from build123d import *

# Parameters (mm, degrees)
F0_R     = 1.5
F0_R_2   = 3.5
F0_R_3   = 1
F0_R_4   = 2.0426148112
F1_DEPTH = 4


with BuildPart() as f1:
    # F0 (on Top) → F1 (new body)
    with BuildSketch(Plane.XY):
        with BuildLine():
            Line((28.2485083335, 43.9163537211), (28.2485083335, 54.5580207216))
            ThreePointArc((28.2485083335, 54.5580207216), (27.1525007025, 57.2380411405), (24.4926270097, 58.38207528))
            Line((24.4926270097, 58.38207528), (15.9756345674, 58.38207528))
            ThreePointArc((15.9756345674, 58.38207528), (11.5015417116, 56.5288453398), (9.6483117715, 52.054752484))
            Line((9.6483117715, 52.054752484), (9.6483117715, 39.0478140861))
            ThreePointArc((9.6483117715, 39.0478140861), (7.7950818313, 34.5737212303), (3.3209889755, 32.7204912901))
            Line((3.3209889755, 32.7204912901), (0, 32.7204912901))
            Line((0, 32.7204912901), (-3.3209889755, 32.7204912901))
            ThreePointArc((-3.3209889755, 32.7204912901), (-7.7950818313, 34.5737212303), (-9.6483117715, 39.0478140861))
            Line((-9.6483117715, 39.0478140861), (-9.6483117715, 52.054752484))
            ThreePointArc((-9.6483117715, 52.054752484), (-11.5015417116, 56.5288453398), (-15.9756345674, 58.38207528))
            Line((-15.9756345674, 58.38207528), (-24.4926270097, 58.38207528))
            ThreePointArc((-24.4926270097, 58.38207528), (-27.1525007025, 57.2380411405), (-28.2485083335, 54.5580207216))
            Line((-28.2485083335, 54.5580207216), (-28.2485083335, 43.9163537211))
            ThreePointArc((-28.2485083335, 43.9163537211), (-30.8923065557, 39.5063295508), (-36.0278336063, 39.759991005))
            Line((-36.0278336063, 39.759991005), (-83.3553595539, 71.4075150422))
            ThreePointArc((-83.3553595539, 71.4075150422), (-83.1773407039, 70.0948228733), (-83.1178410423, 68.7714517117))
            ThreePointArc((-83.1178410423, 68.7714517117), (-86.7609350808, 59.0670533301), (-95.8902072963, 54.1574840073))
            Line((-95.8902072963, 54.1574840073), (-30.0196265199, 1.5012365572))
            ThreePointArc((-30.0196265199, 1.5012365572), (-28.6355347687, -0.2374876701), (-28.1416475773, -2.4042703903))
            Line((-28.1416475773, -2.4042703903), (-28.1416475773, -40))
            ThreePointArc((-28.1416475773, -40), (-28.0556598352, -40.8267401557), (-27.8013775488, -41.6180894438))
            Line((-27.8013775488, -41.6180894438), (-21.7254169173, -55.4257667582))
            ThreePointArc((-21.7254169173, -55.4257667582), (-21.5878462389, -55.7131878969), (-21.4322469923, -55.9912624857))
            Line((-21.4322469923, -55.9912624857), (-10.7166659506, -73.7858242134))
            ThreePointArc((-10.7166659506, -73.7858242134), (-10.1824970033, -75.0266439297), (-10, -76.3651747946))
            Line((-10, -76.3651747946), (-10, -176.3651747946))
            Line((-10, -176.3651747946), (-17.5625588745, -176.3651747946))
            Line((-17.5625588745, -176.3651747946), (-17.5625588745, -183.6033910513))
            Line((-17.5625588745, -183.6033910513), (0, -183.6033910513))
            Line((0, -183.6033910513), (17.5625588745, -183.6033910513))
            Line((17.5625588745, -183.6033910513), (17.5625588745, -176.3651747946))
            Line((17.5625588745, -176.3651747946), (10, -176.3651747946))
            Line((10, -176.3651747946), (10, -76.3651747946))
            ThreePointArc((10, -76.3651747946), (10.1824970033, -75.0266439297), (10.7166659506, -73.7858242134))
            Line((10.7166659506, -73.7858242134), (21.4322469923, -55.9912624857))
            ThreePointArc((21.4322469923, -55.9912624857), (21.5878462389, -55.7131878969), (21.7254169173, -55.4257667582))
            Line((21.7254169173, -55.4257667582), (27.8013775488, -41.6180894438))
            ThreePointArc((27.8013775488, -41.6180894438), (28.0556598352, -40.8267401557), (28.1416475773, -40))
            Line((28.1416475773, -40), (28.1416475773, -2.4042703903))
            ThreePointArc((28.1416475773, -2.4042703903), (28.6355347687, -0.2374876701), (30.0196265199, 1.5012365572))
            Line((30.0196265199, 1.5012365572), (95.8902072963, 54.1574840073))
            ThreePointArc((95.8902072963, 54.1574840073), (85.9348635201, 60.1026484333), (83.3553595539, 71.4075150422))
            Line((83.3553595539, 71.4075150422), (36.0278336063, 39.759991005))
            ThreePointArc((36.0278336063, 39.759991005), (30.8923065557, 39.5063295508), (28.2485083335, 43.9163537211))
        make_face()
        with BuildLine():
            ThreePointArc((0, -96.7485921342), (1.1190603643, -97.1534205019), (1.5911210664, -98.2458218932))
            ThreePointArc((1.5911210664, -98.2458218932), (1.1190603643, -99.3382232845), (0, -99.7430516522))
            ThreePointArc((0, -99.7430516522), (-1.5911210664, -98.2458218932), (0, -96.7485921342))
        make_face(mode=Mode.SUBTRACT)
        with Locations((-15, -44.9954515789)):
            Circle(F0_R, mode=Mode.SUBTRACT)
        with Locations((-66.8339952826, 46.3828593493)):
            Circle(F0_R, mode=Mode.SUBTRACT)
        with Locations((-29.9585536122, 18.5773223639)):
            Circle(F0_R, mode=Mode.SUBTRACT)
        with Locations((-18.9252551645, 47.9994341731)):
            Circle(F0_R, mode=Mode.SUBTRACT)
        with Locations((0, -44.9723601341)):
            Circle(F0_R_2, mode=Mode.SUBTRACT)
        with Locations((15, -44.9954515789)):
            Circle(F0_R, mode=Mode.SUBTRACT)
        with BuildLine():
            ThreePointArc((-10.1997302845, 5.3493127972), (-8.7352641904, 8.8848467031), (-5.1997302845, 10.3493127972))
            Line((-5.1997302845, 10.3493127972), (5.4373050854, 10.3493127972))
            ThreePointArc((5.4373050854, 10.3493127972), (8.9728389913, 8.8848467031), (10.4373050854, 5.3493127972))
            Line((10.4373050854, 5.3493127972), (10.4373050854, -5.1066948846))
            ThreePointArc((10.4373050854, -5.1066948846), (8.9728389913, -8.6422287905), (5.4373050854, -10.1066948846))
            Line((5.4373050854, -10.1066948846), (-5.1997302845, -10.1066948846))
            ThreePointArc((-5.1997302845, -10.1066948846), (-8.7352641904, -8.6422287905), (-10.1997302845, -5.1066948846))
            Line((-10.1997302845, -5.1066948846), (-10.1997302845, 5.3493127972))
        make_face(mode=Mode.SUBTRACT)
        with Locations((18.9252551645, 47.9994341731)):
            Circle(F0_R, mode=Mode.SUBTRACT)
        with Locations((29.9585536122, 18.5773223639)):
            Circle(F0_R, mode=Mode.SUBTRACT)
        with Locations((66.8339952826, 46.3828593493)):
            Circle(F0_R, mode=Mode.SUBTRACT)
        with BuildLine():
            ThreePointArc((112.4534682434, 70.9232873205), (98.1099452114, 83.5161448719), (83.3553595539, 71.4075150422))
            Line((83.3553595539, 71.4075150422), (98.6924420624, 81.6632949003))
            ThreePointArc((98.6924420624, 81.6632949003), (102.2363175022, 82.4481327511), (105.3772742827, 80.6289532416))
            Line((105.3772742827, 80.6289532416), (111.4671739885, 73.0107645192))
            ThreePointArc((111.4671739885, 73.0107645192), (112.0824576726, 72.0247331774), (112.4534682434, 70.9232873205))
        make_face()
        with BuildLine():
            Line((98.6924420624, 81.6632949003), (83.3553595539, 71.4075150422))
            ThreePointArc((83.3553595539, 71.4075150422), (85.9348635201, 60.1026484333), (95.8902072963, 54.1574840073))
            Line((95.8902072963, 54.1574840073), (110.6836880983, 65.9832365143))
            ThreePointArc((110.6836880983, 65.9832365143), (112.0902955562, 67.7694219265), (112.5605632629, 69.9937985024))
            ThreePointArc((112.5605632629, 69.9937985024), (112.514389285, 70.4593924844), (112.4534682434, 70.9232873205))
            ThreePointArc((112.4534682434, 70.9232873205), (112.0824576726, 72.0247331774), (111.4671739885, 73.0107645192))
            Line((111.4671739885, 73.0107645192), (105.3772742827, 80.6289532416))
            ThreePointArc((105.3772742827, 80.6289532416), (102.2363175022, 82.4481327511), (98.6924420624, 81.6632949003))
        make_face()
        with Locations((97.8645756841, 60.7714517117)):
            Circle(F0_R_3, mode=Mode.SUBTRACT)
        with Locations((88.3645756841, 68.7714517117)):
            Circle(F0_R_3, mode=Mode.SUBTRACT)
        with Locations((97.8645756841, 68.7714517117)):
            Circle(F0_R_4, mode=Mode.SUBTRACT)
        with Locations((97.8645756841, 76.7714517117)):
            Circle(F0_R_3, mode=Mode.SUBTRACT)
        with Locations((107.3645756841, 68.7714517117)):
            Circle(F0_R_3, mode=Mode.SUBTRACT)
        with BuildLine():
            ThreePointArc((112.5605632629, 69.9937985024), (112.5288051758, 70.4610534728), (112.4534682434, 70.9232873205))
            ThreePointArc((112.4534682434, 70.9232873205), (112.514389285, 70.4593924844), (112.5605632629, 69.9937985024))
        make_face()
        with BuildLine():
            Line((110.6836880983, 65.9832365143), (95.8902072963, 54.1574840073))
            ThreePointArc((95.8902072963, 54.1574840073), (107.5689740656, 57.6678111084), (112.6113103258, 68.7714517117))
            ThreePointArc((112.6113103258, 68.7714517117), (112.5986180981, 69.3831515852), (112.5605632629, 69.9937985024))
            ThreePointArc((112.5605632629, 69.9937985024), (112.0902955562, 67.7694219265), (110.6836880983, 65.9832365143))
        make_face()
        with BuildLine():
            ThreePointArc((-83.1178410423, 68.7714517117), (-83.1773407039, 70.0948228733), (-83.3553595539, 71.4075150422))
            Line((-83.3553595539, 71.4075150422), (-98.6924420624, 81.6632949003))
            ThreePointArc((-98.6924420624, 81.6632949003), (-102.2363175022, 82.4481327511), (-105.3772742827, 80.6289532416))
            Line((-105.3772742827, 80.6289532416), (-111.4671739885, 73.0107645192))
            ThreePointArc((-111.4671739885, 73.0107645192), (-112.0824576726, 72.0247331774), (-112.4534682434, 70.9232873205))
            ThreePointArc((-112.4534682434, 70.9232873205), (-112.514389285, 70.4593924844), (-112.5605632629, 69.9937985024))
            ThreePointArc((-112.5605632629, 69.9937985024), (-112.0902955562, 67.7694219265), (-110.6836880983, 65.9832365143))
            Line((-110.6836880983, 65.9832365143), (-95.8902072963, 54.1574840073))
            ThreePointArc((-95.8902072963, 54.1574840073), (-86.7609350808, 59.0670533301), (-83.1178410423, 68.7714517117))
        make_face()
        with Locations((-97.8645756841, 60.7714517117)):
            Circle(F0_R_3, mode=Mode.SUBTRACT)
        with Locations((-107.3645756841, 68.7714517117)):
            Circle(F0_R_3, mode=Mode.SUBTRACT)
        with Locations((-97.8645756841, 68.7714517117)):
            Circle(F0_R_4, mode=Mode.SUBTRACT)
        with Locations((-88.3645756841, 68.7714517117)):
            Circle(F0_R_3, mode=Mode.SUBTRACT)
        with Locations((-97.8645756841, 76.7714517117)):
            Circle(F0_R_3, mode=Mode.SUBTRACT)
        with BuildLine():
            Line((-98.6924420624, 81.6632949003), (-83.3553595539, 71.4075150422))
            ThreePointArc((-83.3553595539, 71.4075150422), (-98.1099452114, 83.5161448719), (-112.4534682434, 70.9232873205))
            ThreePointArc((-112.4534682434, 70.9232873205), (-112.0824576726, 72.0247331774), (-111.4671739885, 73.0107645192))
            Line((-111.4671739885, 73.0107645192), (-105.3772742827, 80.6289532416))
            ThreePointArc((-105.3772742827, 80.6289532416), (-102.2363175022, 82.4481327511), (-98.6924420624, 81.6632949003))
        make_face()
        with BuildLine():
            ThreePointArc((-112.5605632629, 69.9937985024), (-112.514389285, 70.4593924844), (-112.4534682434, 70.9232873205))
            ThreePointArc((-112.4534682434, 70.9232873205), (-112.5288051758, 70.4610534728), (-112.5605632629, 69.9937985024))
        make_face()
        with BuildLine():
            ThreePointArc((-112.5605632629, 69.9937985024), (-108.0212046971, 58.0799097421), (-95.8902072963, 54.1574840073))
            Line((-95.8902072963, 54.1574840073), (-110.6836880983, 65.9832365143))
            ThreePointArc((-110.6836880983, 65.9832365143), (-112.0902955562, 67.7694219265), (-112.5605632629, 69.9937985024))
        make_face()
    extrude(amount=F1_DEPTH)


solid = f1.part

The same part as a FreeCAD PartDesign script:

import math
import FreeCAD as App
import Part
import Sketcher
from FreeCAD import Vector
Q = App.Units.Quantity

doc = App.newDocument("Part")
body = doc.addObject("PartDesign::Body", "Body")

sketch1 = body.newObject("Sketcher::SketchObject", "Sketch")
sketch1.AttachmentSupport = (doc.getObject("XY_Plane"), [""])
sketch1.MapMode = "FlatFace"
sketch1.addGeometry(Part.LineSegment(Vector(28.2, 43.9, 0), Vector(28.2, 54.6, 0)), False)
sketch1.addGeometry(Part.ArcOfCircle(Part.Circle(Vector(24.4, 54.6, 0), Vector(0, 0, 1), 3.8), math.radians(0), math.radians(89)), False)
sketch1.addGeometry(Part.LineSegment(Vector(24.5, 58.4, 0), Vector(16, 58.4, 0)), False)
sketch1.addGeometry(Part.ArcOfCircle(Part.Circle(Vector(16, 52.1, 0), Vector(0, 0, 1), 6.3), math.radians(90), math.radians(180)), False)
sketch1.addGeometry(Part.LineSegment(Vector(9.6, 52.1, 0), Vector(9.6, 39, 0)), False)
sketch1.addGeometry(Part.ArcOfCircle(Part.Circle(Vector(3.3, 39, 0), Vector(0, 0, 1), 6.3), math.radians(-90), math.radians(0)), False)
sketch1.addGeometry(Part.LineSegment(Vector(3.3, 32.7, 0), Vector(-3.3, 32.7, 0)), False)
sketch1.addGeometry(Part.ArcOfCircle(Part.Circle(Vector(-3.3, 39, 0), Vector(0, 0, 1), 6.3), math.radians(180), math.radians(270)), False)
sketch1.addGeometry(Part.LineSegment(Vector(-9.6, 39, 0), Vector(-9.6, 52.1, 0)), False)
sketch1.addGeometry(Part.ArcOfCircle(Part.Circle(Vector(-16, 52.1, 0), Vector(0, 0, 1), 6.3), math.radians(0), math.radians(90)), False)
sketch1.addGeometry(Part.LineSegment(Vector(-16, 58.4, 0), Vector(-24.5, 58.4, 0)), False)
sketch1.addGeometry(Part.ArcOfCircle(Part.Circle(Vector(-24.4, 54.6, 0), Vector(0, 0, 1), 3.8), math.radians(91), math.radians(180)), False)
sketch1.addGeometry(Part.LineSegment(Vector(-28.2, 54.6, 0), Vector(-28.2, 43.9, 0)), False)
sketch1.addGeometry(Part.ArcOfCircle(Part.Circle(Vector(-33.2, 43.9, 0), Vector(0, 0, 1), 5), math.radians(-124), math.radians(0)), False)
sketch1.addGeometry(Part.LineSegment(Vector(-36, 39.8, 0), Vector(-83.4, 71.4, 0)), False)
sketch1.addGeometry(Part.ArcOfCircle(Part.Circle(Vector(-97.9, 68.8, 0), Vector(0, 0, 1), 14.7), math.radians(10), math.radians(172)), False)
sketch1.addGeometry(Part.ArcOfCircle(Part.Circle(Vector(-107.6, 69.9, 0), Vector(0, 0, 1), 5), math.radians(168.06), math.radians(178.8)), False)
sketch1.addGeometry(Part.ArcOfCircle(Part.Circle(Vector(-97.9, 68.8, 0), Vector(0, 0, 1), 14.7), math.radians(175), math.radians(278)), False)
sketch1.addGeometry(Part.LineSegment(Vector(-95.9, 54.2, 0), Vector(-30, 1.5, 0)), False)
sketch1.addGeometry(Part.ArcOfCircle(Part.Circle(Vector(-33.1, -2.4, 0), Vector(0, 0, 1), 5), math.radians(0), math.radians(51)), False)
sketch1.addGeometry(Part.LineSegment(Vector(-28.1, -2.4, 0), Vector(-28.1, -40, 0)), False)
sketch1.addGeometry(Part.ArcOfCircle(Part.Circle(Vector(-24.1, -40, 0), Vector(0, 0, 1), 4), math.radians(180), math.radians(204)), False)
sketch1.addGeometry(Part.LineSegment(Vector(-27.8, -41.6, 0), Vector(-21.7, -55.4, 0)), False)
sketch1.addGeometry(Part.ArcOfCircle(Part.Circle(Vector(-17.1, -53.4, 0), Vector(0, 0, 1), 5), math.radians(-156.25), math.radians(-148.94)), False)
sketch1.addGeometry(Part.LineSegment(Vector(-21.4, -56, 0), Vector(-10.7, -73.8, 0)), False)
sketch1.addGeometry(Part.ArcOfCircle(Part.Circle(Vector(-15, -76.4, 0), Vector(0, 0, 1), 5), math.radians(0), math.radians(31)), False)
sketch1.addGeometry(Part.LineSegment(Vector(-10, -76.4, 0), Vector(-10, -176.4, 0)), False)
sketch1.addGeometry(Part.LineSegment(Vector(-10, -176.4, 0), Vector(-17.6, -176.4, 0)), False)
sketch1.addGeometry(Part.LineSegment(Vector(-17.6, -176.4, 0), Vector(-17.6, -183.6, 0)), False)
sketch1.addGeometry(Part.LineSegment(Vector(-17.6, -183.6, 0), Vector(17.6, -183.6, 0)), False)
sketch1.addGeometry(Part.LineSegment(Vector(17.6, -183.6, 0), Vector(17.6, -176.4, 0)), False)
sketch1.addGeometry(Part.LineSegment(Vector(17.6, -176.4, 0), Vector(10, -176.4, 0)), False)
sketch1.addGeometry(Part.LineSegment(Vector(10, -176.4, 0), Vector(10, -76.4, 0)), False)
sketch1.addGeometry(Part.ArcOfCircle(Part.Circle(Vector(15, -76.4, 0), Vector(0, 0, 1), 5), math.radians(149), math.radians(180)), False)
sketch1.addGeometry(Part.LineSegment(Vector(10.7, -73.8, 0), Vector(21.4, -56, 0)), False)
sketch1.addGeometry(Part.ArcOfCircle(Part.Circle(Vector(17.1, -53.4, 0), Vector(0, 0, 1), 5), math.radians(-31.06), math.radians(-23.75)), False)
sketch1.addGeometry(Part.LineSegment(Vector(21.7, -55.4, 0), Vector(27.8, -41.6, 0)), False)
sketch1.addGeometry(Part.ArcOfCircle(Part.Circle(Vector(24.1, -40, 0), Vector(0, 0, 1), 4), math.radians(-24), math.radians(0)), False)
sketch1.addGeometry(Part.LineSegment(Vector(28.1, -40, 0), Vector(28.1, -2.4, 0)), False)
sketch1.addGeometry(Part.ArcOfCircle(Part.Circle(Vector(33.1, -2.4, 0), Vector(0, 0, 1), 5), math.radians(129), math.radians(180)), False)
sketch1.addGeometry(Part.LineSegment(Vector(30, 1.5, 0), Vector(95.9, 54.2, 0)), False)
sketch1.addGeometry(Part.ArcOfCircle(Part.Circle(Vector(97.9, 68.8, 0), Vector(0, 0, 1), 14.7), math.radians(-98), math.radians(0)), False)
sketch1.addGeometry(Part.ArcOfCircle(Part.Circle(Vector(97.9, 68.8, 0), Vector(0, 0, 1), 14.7), math.radians(0), math.radians(4.75)), False)
sketch1.addGeometry(Part.ArcOfCircle(Part.Circle(Vector(107.6, 69.9, 0), Vector(0, 0, 1), 5), math.radians(1.2), math.radians(11.94)), False)
sketch1.addGeometry(Part.ArcOfCircle(Part.Circle(Vector(97.9, 68.8, 0), Vector(0, 0, 1), 14.7), math.radians(8), math.radians(170)), False)
sketch1.addGeometry(Part.LineSegment(Vector(83.4, 71.4, 0), Vector(36, 39.8, 0)), False)
sketch1.addGeometry(Part.ArcOfCircle(Part.Circle(Vector(33.2, 43.9, 0), Vector(0, 0, 1), 5), math.radians(180), math.radians(304)), False)
sketch1.addGeometry(Part.Circle(Vector(-15, -45, 0), Vector(0, 0, 1), 1.5), False)
sketch1.addGeometry(Part.ArcOfCircle(Part.Circle(Vector(-0.1, -98.2, 0), Vector(0, 0, 1), 1.5), math.radians(87), math.radians(273)), False)
sketch1.addGeometry(Part.ArcOfCircle(Part.Circle(Vector(0.1, -98.2, 0), Vector(0, 0, 1), 1.5), math.radians(0), math.radians(93)), False)
sketch1.addGeometry(Part.ArcOfCircle(Part.Circle(Vector(0.1, -98.2, 0), Vector(0, 0, 1), 1.5), math.radians(-93), math.radians(0)), False)
sketch1.addGeometry(Part.Circle(Vector(0, -45, 0), Vector(0, 0, 1), 3.5), False)
sketch1.addGeometry(Part.Circle(Vector(15, -45, 0), Vector(0, 0, 1), 1.5), False)
sketch1.addGeometry(Part.Circle(Vector(-30, 18.6, 0), Vector(0, 0, 1), 1.5), False)
sketch1.addGeometry(Part.Circle(Vector(-66.8, 46.4, 0), Vector(0, 0, 1), 1.5), False)
sketch1.addGeometry(Part.Circle(Vector(-97.9, 60.8, 0), Vector(0, 0, 1), 1), False)
sketch1.addGeometry(Part.Circle(Vector(-107.4, 68.8, 0), Vector(0, 0, 1), 1), False)
sketch1.addGeometry(Part.Circle(Vector(-97.9, 68.8, 0), Vector(0, 0, 1), 2), False)
sketch1.addGeometry(Part.Circle(Vector(-97.9, 76.8, 0), Vector(0, 0, 1), 1), False)
sketch1.addGeometry(Part.Circle(Vector(-88.4, 68.8, 0), Vector(0, 0, 1), 1), False)
sketch1.addGeometry(Part.Circle(Vector(-18.9, 48, 0), Vector(0, 0, 1), 1.5), False)
sketch1.addGeometry(Part.LineSegment(Vector(-10.2, -5.1, 0), Vector(-10.2, 5.3, 0)), False)
sketch1.addGeometry(Part.ArcOfCircle(Part.Circle(Vector(-5.2, 5.3, 0), Vector(0, 0, 1), 5), math.radians(90), math.radians(180)), False)
sketch1.addGeometry(Part.LineSegment(Vector(-5.2, 10.3, 0), Vector(5.4, 10.3, 0)), False)
sketch1.addGeometry(Part.ArcOfCircle(Part.Circle(Vector(5.4, 5.3, 0), Vector(0, 0, 1), 5), math.radians(0), math.radians(90)), False)
sketch1.addGeometry(Part.LineSegment(Vector(10.4, 5.3, 0), Vector(10.4, -5.1, 0)), False)
sketch1.addGeometry(Part.ArcOfCircle(Part.Circle(Vector(5.4, -5.1, 0), Vector(0, 0, 1), 5), math.radians(-90), math.radians(0)), False)
sketch1.addGeometry(Part.LineSegment(Vector(5.4, -10.1, 0), Vector(-5.2, -10.1, 0)), False)
sketch1.addGeometry(Part.ArcOfCircle(Part.Circle(Vector(-5.2, -5.1, 0), Vector(0, 0, 1), 5), math.radians(-180), math.radians(-90)), False)
sketch1.addGeometry(Part.Circle(Vector(30, 18.6, 0), Vector(0, 0, 1), 1.5), False)
sketch1.addGeometry(Part.Circle(Vector(18.9, 48, 0), Vector(0, 0, 1), 1.5), False)
sketch1.addGeometry(Part.Circle(Vector(66.8, 46.4, 0), Vector(0, 0, 1), 1.5), False)
sketch1.addGeometry(Part.Circle(Vector(97.9, 60.8, 0), Vector(0, 0, 1), 1), False)
sketch1.addGeometry(Part.Circle(Vector(88.4, 68.8, 0), Vector(0, 0, 1), 1), False)
sketch1.addGeometry(Part.Circle(Vector(97.9, 68.8, 0), Vector(0, 0, 1), 2), False)
sketch1.addGeometry(Part.Circle(Vector(107.4, 68.8, 0), Vector(0, 0, 1), 1), False)
sketch1.addGeometry(Part.Circle(Vector(97.9, 76.8, 0), Vector(0, 0, 1), 1), False)
sketch1.addConstraint(Sketcher.Constraint("Tangent", 0, 2, 1, 1))
sketch1.addConstraint(Sketcher.Constraint("Coincident", 1, 2, 2, 1))
sketch1.addConstraint(Sketcher.Constraint("Tangent", 2, 2, 3, 1))
sketch1.addConstraint(Sketcher.Constraint("Tangent", 3, 2, 4, 1))
sketch1.addConstraint(Sketcher.Constraint("Tangent", 4, 2, 5, 2))
sketch1.addConstraint(Sketcher.Constraint("Tangent", 5, 1, 6, 1))
sketch1.addConstraint(Sketcher.Constraint("Tangent", 6, 2, 7, 2))
sketch1.addConstraint(Sketcher.Constraint("Tangent", 7, 1, 8, 1))
sketch1.addConstraint(Sketcher.Constraint("Tangent", 8, 2, 9, 1))
sketch1.addConstraint(Sketcher.Constraint("Tangent", 9, 2, 10, 1))
sketch1.addConstraint(Sketcher.Constraint("Coincident", 10, 2, 11, 1))
sketch1.addConstraint(Sketcher.Constraint("Tangent", 11, 2, 12, 1))
sketch1.addConstraint(Sketcher.Constraint("Tangent", 12, 2, 13, 2))
sketch1.addConstraint(Sketcher.Constraint("Tangent", 13, 1, 14, 1))
sketch1.addConstraint(Sketcher.Constraint("Coincident", 14, 2, 15, 1))
sketch1.addConstraint(Sketcher.Constraint("Coincident", 15, 2, 16, 1))
sketch1.addConstraint(Sketcher.Constraint("Coincident", 16, 2, 17, 1))
sketch1.addConstraint(Sketcher.Constraint("Coincident", 17, 2, 18, 1))
sketch1.addConstraint(Sketcher.Constraint("Tangent", 18, 2, 19, 2))
sketch1.addConstraint(Sketcher.Constraint("Tangent", 19, 1, 20, 1))
sketch1.addConstraint(Sketcher.Constraint("Tangent", 20, 2, 21, 1))
sketch1.addConstraint(Sketcher.Constraint("Tangent", 21, 2, 22, 1))
sketch1.addConstraint(Sketcher.Constraint("Tangent", 22, 2, 23, 1))
sketch1.addConstraint(Sketcher.Constraint("Tangent", 23, 2, 24, 1))
sketch1.addConstraint(Sketcher.Constraint("Tangent", 24, 2, 25, 2))
sketch1.addConstraint(Sketcher.Constraint("Tangent", 25, 1, 26, 1))
sketch1.addConstraint(Sketcher.Constraint("Coincident", 26, 2, 27, 1))
sketch1.addConstraint(Sketcher.Constraint("Coincident", 27, 2, 28, 1))
sketch1.addConstraint(Sketcher.Constraint("Coincident", 28, 2, 29, 1))
sketch1.addConstraint(Sketcher.Constraint("Coincident", 29, 2, 30, 1))
sketch1.addConstraint(Sketcher.Constraint("Coincident", 30, 2, 31, 1))
sketch1.addConstraint(Sketcher.Constraint("Coincident", 31, 2, 32, 1))
sketch1.addConstraint(Sketcher.Constraint("Tangent", 32, 2, 33, 2))
sketch1.addConstraint(Sketcher.Constraint("Tangent", 33, 1, 34, 1))
sketch1.addConstraint(Sketcher.Constraint("Tangent", 34, 2, 35, 1))
sketch1.addConstraint(Sketcher.Constraint("Tangent", 35, 2, 36, 1))
sketch1.addConstraint(Sketcher.Constraint("Tangent", 36, 2, 37, 1))
sketch1.addConstraint(Sketcher.Constraint("Tangent", 37, 2, 38, 1))
sketch1.addConstraint(Sketcher.Constraint("Tangent", 38, 2, 39, 2))
sketch1.addConstraint(Sketcher.Constraint("Tangent", 39, 1, 40, 1))
sketch1.addConstraint(Sketcher.Constraint("Coincident", 40, 2, 41, 1))
sketch1.addConstraint(Sketcher.Constraint("Tangent", 41, 2, 42, 1))
sketch1.addConstraint(Sketcher.Constraint("Coincident", 42, 2, 43, 1))
sketch1.addConstraint(Sketcher.Constraint("Coincident", 43, 2, 44, 1))
sketch1.addConstraint(Sketcher.Constraint("Coincident", 44, 2, 45, 1))
sketch1.addConstraint(Sketcher.Constraint("Tangent", 45, 2, 46, 2))
sketch1.addConstraint(Sketcher.Constraint("Tangent", 46, 1, 0, 1))
sketch1.addConstraint(Sketcher.Constraint("Coincident", 48, 1, 49, 2))
sketch1.addConstraint(Sketcher.Constraint("Tangent", 49, 1, 50, 2))
sketch1.addConstraint(Sketcher.Constraint("Coincident", 50, 1, 48, 2))
sketch1.addConstraint(Sketcher.Constraint("Tangent", 61, 2, 62, 2))
sketch1.addConstraint(Sketcher.Constraint("Tangent", 62, 1, 63, 1))
sketch1.addConstraint(Sketcher.Constraint("Tangent", 63, 2, 64, 2))
sketch1.addConstraint(Sketcher.Constraint("Tangent", 64, 1, 65, 1))
sketch1.addConstraint(Sketcher.Constraint("Tangent", 65, 2, 66, 2))
sketch1.addConstraint(Sketcher.Constraint("Tangent", 66, 1, 67, 1))
sketch1.addConstraint(Sketcher.Constraint("Tangent", 67, 2, 68, 2))
sketch1.addConstraint(Sketcher.Constraint("Tangent", 68, 1, 61, 1))
sketch1.addConstraint(Sketcher.Constraint("Vertical", 0))
sketch1.addConstraint(Sketcher.Constraint("Horizontal", 2))
sketch1.addConstraint(Sketcher.Constraint("Vertical", 4))
sketch1.addConstraint(Sketcher.Constraint("Horizontal", 6))
sketch1.addConstraint(Sketcher.Constraint("Vertical", 8))
sketch1.addConstraint(Sketcher.Constraint("Horizontal", 10))
sketch1.addConstraint(Sketcher.Constraint("Vertical", 12))
sketch1.addConstraint(Sketcher.Constraint("Vertical", 20))
sketch1.addConstraint(Sketcher.Constraint("Vertical", 26))
sketch1.addConstraint(Sketcher.Constraint("Horizontal", 27))
sketch1.addConstraint(Sketcher.Constraint("Vertical", 28))
sketch1.addConstraint(Sketcher.Constraint("Horizontal", 29))
sketch1.addConstraint(Sketcher.Constraint("Vertical", 30))
sketch1.addConstraint(Sketcher.Constraint("Horizontal", 31))
sketch1.addConstraint(Sketcher.Constraint("Vertical", 32))
sketch1.addConstraint(Sketcher.Constraint("Vertical", 38))
sketch1.addConstraint(Sketcher.Constraint("Vertical", 61))
sketch1.addConstraint(Sketcher.Constraint("Horizontal", 63))
sketch1.addConstraint(Sketcher.Constraint("Vertical", 65))
sketch1.addConstraint(Sketcher.Constraint("Horizontal", 67))
sketch1.addConstraint(Sketcher.Constraint("Coincident", 17, 3, 15, 3))
sketch1.addConstraint(Sketcher.Constraint("Coincident", 44, 3, 41, 3))
sketch1.addConstraint(Sketcher.Constraint("Coincident", 57, 3, 15, 3))
sketch1.addConstraint(Sketcher.Constraint("Coincident", 74, 3, 41, 3))
sketch1.addConstraint(Sketcher.Constraint("Equal", 3, 5))
sketch1.addConstraint(Sketcher.Constraint("Equal", 5, 7))
sketch1.addConstraint(Sketcher.Constraint("Equal", 7, 9))
sketch1.addConstraint(Sketcher.Constraint("Equal", 1, 11))
sketch1.addConstraint(Sketcher.Constraint("Equal", 13, 16))
sketch1.addConstraint(Sketcher.Constraint("Equal", 15, 17))
sketch1.addConstraint(Sketcher.Constraint("Equal", 16, 19))
sketch1.addConstraint(Sketcher.Constraint("Equal", 19, 23))
sketch1.addConstraint(Sketcher.Constraint("Equal", 23, 25))
sketch1.addConstraint(Sketcher.Constraint("Equal", 25, 33))
sketch1.addConstraint(Sketcher.Constraint("Equal", 33, 35))
sketch1.addConstraint(Sketcher.Constraint("Equal", 21, 37))
sketch1.addConstraint(Sketcher.Constraint("Equal", 35, 39))
sketch1.addConstraint(Sketcher.Constraint("Equal", 17, 41))
sketch1.addConstraint(Sketcher.Constraint("Equal", 41, 42))
sketch1.addConstraint(Sketcher.Constraint("Equal", 39, 43))
sketch1.addConstraint(Sketcher.Constraint("Equal", 42, 44))
sketch1.addConstraint(Sketcher.Constraint("Equal", 43, 46))
sketch1.addConstraint(Sketcher.Constraint("Equal", 47, 48))
sketch1.addConstraint(Sketcher.Constraint("Equal", 48, 49))
sketch1.addConstraint(Sketcher.Constraint("Equal", 49, 50))
sketch1.addConstraint(Sketcher.Constraint("Equal", 50, 52))
sketch1.addConstraint(Sketcher.Constraint("Equal", 52, 53))
sketch1.addConstraint(Sketcher.Constraint("Equal", 53, 54))
sketch1.addConstraint(Sketcher.Constraint("Equal", 55, 56))
sketch1.addConstraint(Sketcher.Constraint("Equal", 56, 58))
sketch1.addConstraint(Sketcher.Constraint("Equal", 58, 59))
sketch1.addConstraint(Sketcher.Constraint("Equal", 54, 60))
sketch1.addConstraint(Sketcher.Constraint("Equal", 46, 62))
sketch1.addConstraint(Sketcher.Constraint("Equal", 62, 64))
sketch1.addConstraint(Sketcher.Constraint("Equal", 64, 66))
sketch1.addConstraint(Sketcher.Constraint("Equal", 66, 68))
sketch1.addConstraint(Sketcher.Constraint("Equal", 60, 69))
sketch1.addConstraint(Sketcher.Constraint("Equal", 69, 70))
sketch1.addConstraint(Sketcher.Constraint("Equal", 70, 71))
sketch1.addConstraint(Sketcher.Constraint("Equal", 59, 72))
sketch1.addConstraint(Sketcher.Constraint("Equal", 72, 73))
sketch1.addConstraint(Sketcher.Constraint("Equal", 57, 74))
sketch1.addConstraint(Sketcher.Constraint("Equal", 73, 75))
sketch1.addConstraint(Sketcher.Constraint("Equal", 75, 76))
sketch1.addConstraint(Sketcher.Constraint("Symmetric", 3, 3, 9, 3, -2))
sketch1.addConstraint(Sketcher.Constraint("Symmetric", 1, 3, 11, 3, -2))
sketch1.addConstraint(Sketcher.Constraint("Symmetric", 25, 3, 33, 3, -2))
sketch1.addConstraint(Sketcher.Constraint("Symmetric", 23, 3, 35, 3, -2))
sketch1.addConstraint(Sketcher.Constraint("Symmetric", 21, 3, 37, 3, -2))
sketch1.addConstraint(Sketcher.Constraint("Symmetric", 15, 3, 41, 3, -2))
sketch1.addConstraint(Sketcher.Constraint("Symmetric", 16, 3, 43, 3, -2))
sketch1.addConstraint(Sketcher.Constraint("Symmetric", 48, 3, 49, 3, -2))
sketch1.addConstraint(Sketcher.Constraint("Symmetric", 47, 3, 52, 3, -2))
sketch1.addConstraint(Sketcher.Constraint("Symmetric", 53, 3, 69, 3, -2))
sketch1.addConstraint(Sketcher.Constraint("Symmetric", 60, 3, 70, 3, -2))
sketch1.addConstraint(Sketcher.Constraint("Symmetric", 54, 3, 71, 3, -2))
sketch1.addConstraint(Sketcher.Constraint("Symmetric", 55, 3, 72, 3, -2))
sketch1.addConstraint(Sketcher.Constraint("Symmetric", 59, 3, 73, 3, -2))
sketch1.addConstraint(Sketcher.Constraint("Symmetric", 56, 3, 75, 3, -2))
sketch1.addConstraint(Sketcher.Constraint("Symmetric", 58, 3, 76, 3, -2))
sketch1.addConstraint(Sketcher.Constraint("Symmetric", 27, 2, 30, 2, -2))
sketch1.addConstraint(Sketcher.Constraint("Symmetric", 18, 2, 39, 1, -2))
sketch1.addConstraint(Sketcher.Constraint("Symmetric", 13, 1, 45, 2, -2))
sketch1.addConstraint(Sketcher.Constraint("PointOnObject", 51, 3, -2))
sketch1.addConstraint(Sketcher.Constraint("Horizontal", 44, 3, 56, 3))
sketch1.addConstraint(Sketcher.Constraint("Horizontal", 57, 3, 59, 3))
sketch1.addConstraint(Sketcher.Constraint("Horizontal", 75, 3, 41, 2))
sketch1.addConstraint(Sketcher.Constraint("Horizontal", 50, 3, 49, 1))
sketch1.addConstraint(Sketcher.Constraint("Vertical", 25, 3, 47, 3))
sketch1.addConstraint(Sketcher.Constraint("Vertical", 17, 3, 55, 3))
sketch1.addConstraint(Sketcher.Constraint("Vertical", 57, 3, 58, 3))
sketch1.addConstraint(Sketcher.Constraint("Diameter", 47, Q("3 mm")))
sketch1.addConstraint(Sketcher.Constraint("Diameter", 51, Q("7 mm")))
sketch1.addConstraint(Sketcher.Constraint("Diameter", 55, Q("2 mm")))
sketch1.addConstraint(Sketcher.Constraint("Radius", 13, Q("5 mm")))
sketch1.addConstraint(Sketcher.Constraint("DistanceY", 26, 2, 26, 1, Q("100 mm")))
sketch1.addConstraint(Sketcher.Constraint("DistanceY", 21, 3, -1, 1, Q("40 mm")))
sketch1.addConstraint(Sketcher.Constraint("DistanceX", 25, 3, -1, 1, Q("15 mm")))
sketch1.addConstraint(Sketcher.Constraint("Diameter", 57, Q("4.08523 mm")))
sketch1.addConstraint(Sketcher.Constraint("Radius", 1, Q("3.824673 mm")))
sketch1.addConstraint(Sketcher.Constraint("Radius", 3, Q("6.327323 mm")))
sketch1.addConstraint(Sketcher.Constraint("Radius", 15, Q("14.746735 mm")))
sketch1.addConstraint(Sketcher.Constraint("Radius", 21, Q("4.017393 mm")))
sketch1.addConstraint(Sketcher.Constraint("Distance", 22, Q("15.085399 mm")))
sketch1.addConstraint(Sketcher.Constraint("DistanceX", 27, 2, 27, 1, Q("7.562559 mm")))
sketch1.addConstraint(Sketcher.Constraint("DistanceY", 4, 2, 4, 1, Q("13.006938 mm")))
sketch1.addConstraint(Sketcher.Constraint("DistanceY", 20, 2, 20, 1, Q("37.59573 mm")))
sketch1.addConstraint(Sketcher.Constraint("DistanceY", -1, 1, 16, 2, Q("69.993799 mm")))
sketch1.addConstraint(Sketcher.Constraint("Distance", 24, Q("20.771858 mm")))
sketch1.addConstraint(Sketcher.Constraint("DistanceX", 2, 2, 2, 1, Q("8.516992 mm")))
sketch1.addConstraint(Sketcher.Constraint("DistanceX", 6, 2, 6, 1, Q("6.641978 mm")))
sketch1.addConstraint(Sketcher.Constraint("DistanceX", 63, 1, 63, 2, Q("10.637035 mm")))
sketch1.addConstraint(Sketcher.Constraint("DistanceY", 0, 1, 0, 2, Q("10.641667 mm")))
sketch1.addConstraint(Sketcher.Constraint("DistanceY", 28, 2, 28, 1, Q("7.238216 mm")))
sketch1.addConstraint(Sketcher.Constraint("DistanceY", 61, 1, 61, 2, Q("10.456008 mm")))
sketch1.addConstraint(Sketcher.Constraint("DistanceY", -1, 1, 1, 3, Q("54.558021 mm")))
sketch1.addConstraint(Sketcher.Constraint("DistanceX", 13, 3, -1, 1, Q("33.248508 mm")))
sketch1.addConstraint(Sketcher.Constraint("DistanceY", -1, 1, 15, 3, Q("68.771452 mm")))
sketch1.addConstraint(Sketcher.Constraint("DistanceY", 23, 3, -1, 1, Q("53.411912 mm")))
sketch1.addConstraint(Sketcher.Constraint("DistanceY", 47, 3, -1, 1, Q("44.995452 mm")))
sketch1.addConstraint(Sketcher.Constraint("DistanceX", 48, 3, -1, 1, Q("0.091121 mm")))
sketch1.addConstraint(Sketcher.Constraint("DistanceY", 48, 3, -1, 1, Q("98.245822 mm")))
sketch1.addConstraint(Sketcher.Constraint("DistanceY", 51, 3, -1, 1, Q("44.97236 mm")))
sketch1.addConstraint(Sketcher.Constraint("DistanceY", -1, 1, 54, 3, Q("46.382859 mm")))
sketch1.addConstraint(Sketcher.Constraint("DistanceY", -1, 1, 55, 3, Q("60.771452 mm")))
sketch1.addConstraint(Sketcher.Constraint("DistanceY", -1, 1, 58, 3, Q("76.771452 mm")))
sketch1.addConstraint(Sketcher.Constraint("DistanceX", 62, 3, -1, 1, Q("5.19973 mm")))
sketch1.addConstraint(Sketcher.Constraint("DistanceY", -1, 1, 13, 1, Q("39.759991 mm")))
sketch1.addConstraint(Sketcher.Constraint("DistanceX", 14, 2, -1, 1, Q("83.35536 mm")))
sketch1.addConstraint(Sketcher.Constraint("DistanceX", 15, 2, -1, 1, Q("112.453468 mm")))
sketch1.addConstraint(Sketcher.Constraint("DistanceY", 28, 2, -1, 1, Q("183.603391 mm")))
sketch1.addConstraint(Sketcher.Constraint("Distance", 18, Q("84.330385 mm")))
sketch1.addConstraint(Sketcher.Constraint("DistanceX", 53, 3, -1, 1, Q("29.958554 mm")))
sketch1.addConstraint(Sketcher.Constraint("DistanceY", -1, 1, 53, 3, Q("18.577322 mm")))
sketch1.addConstraint(Sketcher.Constraint("DistanceX", 54, 3, -1, 1, Q("66.833995 mm")))
sketch1.addConstraint(Sketcher.Constraint("DistanceX", 56, 3, -1, 1, Q("107.364576 mm")))
sketch1.addConstraint(Sketcher.Constraint("DistanceX", 59, 3, -1, 1, Q("88.364576 mm")))
sketch1.addConstraint(Sketcher.Constraint("DistanceX", 60, 3, -1, 1, Q("18.925255 mm")))
sketch1.addConstraint(Sketcher.Constraint("DistanceY", -1, 1, 60, 3, Q("47.999434 mm")))
sketch1.addConstraint(Sketcher.Constraint("DistanceY", -1, 1, 62, 3, Q("5.349313 mm")))
pad1 = body.newObject("PartDesign::Pad", "Pad")
pad1.Profile = sketch1
pad1.Length = 4

doc.recompute()
